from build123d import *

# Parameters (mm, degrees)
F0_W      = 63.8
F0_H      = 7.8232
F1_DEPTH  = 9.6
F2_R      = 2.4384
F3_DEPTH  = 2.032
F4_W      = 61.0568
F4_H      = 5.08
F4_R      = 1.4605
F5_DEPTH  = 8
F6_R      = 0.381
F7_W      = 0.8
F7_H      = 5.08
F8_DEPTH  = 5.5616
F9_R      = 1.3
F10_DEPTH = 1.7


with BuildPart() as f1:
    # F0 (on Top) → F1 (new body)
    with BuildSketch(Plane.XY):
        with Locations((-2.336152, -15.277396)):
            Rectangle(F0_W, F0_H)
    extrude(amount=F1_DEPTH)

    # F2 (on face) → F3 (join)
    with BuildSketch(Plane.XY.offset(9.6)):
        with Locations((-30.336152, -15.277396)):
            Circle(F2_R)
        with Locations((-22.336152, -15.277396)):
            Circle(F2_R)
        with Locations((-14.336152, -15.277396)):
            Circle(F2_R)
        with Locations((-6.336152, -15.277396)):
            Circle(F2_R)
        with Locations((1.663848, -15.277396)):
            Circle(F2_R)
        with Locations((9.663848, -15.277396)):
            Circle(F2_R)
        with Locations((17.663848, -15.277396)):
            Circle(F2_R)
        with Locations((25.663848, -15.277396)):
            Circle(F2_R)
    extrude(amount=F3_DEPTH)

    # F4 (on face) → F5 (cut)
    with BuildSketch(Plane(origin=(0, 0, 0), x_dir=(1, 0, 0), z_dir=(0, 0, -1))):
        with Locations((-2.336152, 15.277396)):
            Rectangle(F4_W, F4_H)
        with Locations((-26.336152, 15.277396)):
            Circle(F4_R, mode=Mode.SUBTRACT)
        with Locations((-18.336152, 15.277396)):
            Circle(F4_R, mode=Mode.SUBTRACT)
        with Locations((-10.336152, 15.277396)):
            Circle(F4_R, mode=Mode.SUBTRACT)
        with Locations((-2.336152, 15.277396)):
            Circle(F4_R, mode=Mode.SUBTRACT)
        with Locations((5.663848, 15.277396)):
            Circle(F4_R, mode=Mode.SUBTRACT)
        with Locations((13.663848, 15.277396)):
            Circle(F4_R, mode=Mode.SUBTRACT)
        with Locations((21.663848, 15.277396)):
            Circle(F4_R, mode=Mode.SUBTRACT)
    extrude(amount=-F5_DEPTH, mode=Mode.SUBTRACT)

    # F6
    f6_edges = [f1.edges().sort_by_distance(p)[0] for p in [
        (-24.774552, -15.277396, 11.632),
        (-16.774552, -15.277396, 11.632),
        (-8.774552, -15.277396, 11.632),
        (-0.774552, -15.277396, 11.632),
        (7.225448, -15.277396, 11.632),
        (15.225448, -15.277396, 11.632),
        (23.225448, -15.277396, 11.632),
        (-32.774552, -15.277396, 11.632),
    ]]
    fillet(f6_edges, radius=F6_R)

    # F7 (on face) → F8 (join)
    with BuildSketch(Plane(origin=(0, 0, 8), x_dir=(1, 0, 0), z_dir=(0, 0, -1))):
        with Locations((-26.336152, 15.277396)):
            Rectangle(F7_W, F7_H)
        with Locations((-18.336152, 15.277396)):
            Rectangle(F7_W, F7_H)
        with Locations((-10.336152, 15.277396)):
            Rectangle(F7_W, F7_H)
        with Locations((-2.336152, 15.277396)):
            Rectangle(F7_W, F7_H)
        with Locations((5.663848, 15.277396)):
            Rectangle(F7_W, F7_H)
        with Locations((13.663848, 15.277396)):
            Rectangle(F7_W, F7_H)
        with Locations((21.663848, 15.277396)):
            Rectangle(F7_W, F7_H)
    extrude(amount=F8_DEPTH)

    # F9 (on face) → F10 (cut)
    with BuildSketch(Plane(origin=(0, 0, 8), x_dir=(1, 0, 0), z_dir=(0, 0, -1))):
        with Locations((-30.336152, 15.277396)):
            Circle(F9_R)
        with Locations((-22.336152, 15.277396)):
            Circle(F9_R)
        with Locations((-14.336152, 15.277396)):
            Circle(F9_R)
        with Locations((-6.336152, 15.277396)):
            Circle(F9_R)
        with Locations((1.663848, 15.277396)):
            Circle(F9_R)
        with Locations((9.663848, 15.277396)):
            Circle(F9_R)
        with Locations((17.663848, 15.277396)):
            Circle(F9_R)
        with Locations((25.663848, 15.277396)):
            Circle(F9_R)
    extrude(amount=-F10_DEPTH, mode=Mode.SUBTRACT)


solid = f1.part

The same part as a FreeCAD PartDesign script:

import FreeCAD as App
import Part
import Sketcher
from FreeCAD import Vector


def edges_at(feature, points):
    """Names of the edges that pass closest to the given points."""
    edges = feature.Shape.Edges
    near = lambda p: min(range(len(edges)), key=lambda i: edges[i].distToShape(Part.Vertex(*p))[0])
    return sorted({f"Edge{near(p) + 1}" for p in points})

doc = App.newDocument("Part")
body = doc.addObject("PartDesign::Body", "Body")

sketch1 = body.newObject("Sketcher::SketchObject", "Sketch")
sketch1.AttachmentSupport = (doc.getObject("XY_Plane"), [""])
sketch1.MapMode = "FlatFace"
sketch1.addGeometry(Part.LineSegment(Vector(-34.236152, -11.365796, 0), Vector(-34.236152, -19.188996, 0)), False)
sketch1.addGeometry(Part.LineSegment(Vector(-34.236152, -19.188996, 0), Vector(29.563848, -19.188996, 0)), False)
sketch1.addGeometry(Part.LineSegment(Vector(29.563848, -19.188996, 0), Vector(29.563848, -11.365796, 0)), False)
sketch1.addGeometry(Part.LineSegment(Vector(29.563848, -11.365796, 0), Vector(-34.236152, -11.365796, 0)), False)
sketch1.addConstraint(Sketcher.Constraint("Coincident", 0, 2, 1, 1))
sketch1.addConstraint(Sketcher.Constraint("Coincident", 1, 2, 2, 1))
sketch1.addConstraint(Sketcher.Constraint("Coincident", 2, 2, 3, 1))
sketch1.addConstraint(Sketcher.Constraint("Coincident", 3, 2, 0, 1))
sketch1.addConstraint(Sketcher.Constraint("Vertical", 0))
sketch1.addConstraint(Sketcher.Constraint("Horizontal", 1))
sketch1.addConstraint(Sketcher.Constraint("Vertical", 2))
sketch1.addConstraint(Sketcher.Constraint("Horizontal", 3))
sketch1.addConstraint(Sketcher.Constraint("DistanceX", 1, 1, 1, 2, 63.8))
sketch1.addConstraint(Sketcher.Constraint("DistanceY", 0, 2, 0, 1, 7.8232))
sketch1.addConstraint(Sketcher.Constraint("DistanceX", 0, 2, -1, 1, 34.236152))
sketch1.addConstraint(Sketcher.Constraint("DistanceY", 0, 2, -1, 1, 19.188996))
pad1 = body.newObject("PartDesign::Pad", "Pad")
pad1.Profile = sketch1
pad1.Length = 9.6

sketch2 = body.newObject("Sketcher::SketchObject", "Sketch001")
sketch2.AttachmentSupport = (doc.getObject("XY_Plane"), [""])
sketch2.MapMode = "FlatFace"
sketch2.AttachmentOffset = App.Placement(Vector(0, 0, 9.6), App.Rotation())
sketch2.addGeometry(Part.Circle(Vector(-30.336152, -15.277396, 0), Vector(0, 0, 1), 2.4384), False)
sketch2.addGeometry(Part.Circle(Vector(-22.336152, -15.277396, 0), Vector(0, 0, 1), 2.4384), False)
sketch2.addGeometry(Part.Circle(Vector(-14.336152, -15.277396, 0), Vector(0, 0, 1), 2.4384), False)
sketch2.addGeometry(Part.Circle(Vector(-6.336152, -15.277396, 0), Vector(0, 0, 1), 2.4384), False)
sketch2.addGeometry(Part.Circle(Vector(1.663848, -15.277396, 0), Vector(0, 0, 1), 2.4384), False)
sketch2.addGeometry(Part.Circle(Vector(9.663848, -15.277396, 0), Vector(0, 0, 1), 2.4384), False)
sketch2.addGeometry(Part.Circle(Vector(17.663848, -15.277396, 0), Vector(0, 0, 1), 2.4384), False)
sketch2.addGeometry(Part.Circle(Vector(25.663848, -15.277396, 0), Vector(0, 0, 1), 2.4384), False)
sketch2.addConstraint(Sketcher.Constraint("Equal", 0, 1))
sketch2.addConstraint(Sketcher.Constraint("Equal", 1, 2))
sketch2.addConstraint(Sketcher.Constraint("Equal", 2, 3))
sketch2.addConstraint(Sketcher.Constraint("Equal", 3, 4))
sketch2.addConstraint(Sketcher.Constraint("Equal", 4, 5))
sketch2.addConstraint(Sketcher.Constraint("Equal", 5, 6))
sketch2.addConstraint(Sketcher.Constraint("Equal", 6, 7))
sketch2.addConstraint(Sketcher.Constraint("Horizontal", 0, 3, 1, 3))
sketch2.addConstraint(Sketcher.Constraint("Horizontal", 1, 3, 2, 3))
sketch2.addConstraint(Sketcher.Constraint("Horizontal", 2, 3, 3, 3))
sketch2.addConstraint(Sketcher.Constraint("Horizontal", 3, 3, 4, 3))
sketch2.addConstraint(Sketcher.Constraint("Horizontal", 4, 3, 5, 3))
sketch2.addConstraint(Sketcher.Constraint("Horizontal", 5, 3, 6, 3))
sketch2.addConstraint(Sketcher.Constraint("Horizontal", 6, 3, 7, 3))
sketch2.addConstraint(Sketcher.Constraint("DistanceX", 0, 3, 1, 3, 8.0))
sketch2.addConstraint(Sketcher.Constraint("DistanceX", 1, 3, 2, 3, 8.0))
sketch2.addConstraint(Sketcher.Constraint("DistanceX", 2, 3, 3, 3, 8.0))
sketch2.addConstraint(Sketcher.Constraint("DistanceX", 3, 3, 4, 3, 8.0))
sketch2.addConstraint(Sketcher.Constraint("DistanceX", 4, 3, 5, 3, 8.0))
sketch2.addConstraint(Sketcher.Constraint("DistanceX", 5, 3, 6, 3, 8.0))
sketch2.addConstraint(Sketcher.Constraint("DistanceX", 6, 3, 7, 3, 8.0))
sketch2.addConstraint(Sketcher.Constraint("Diameter", 0, 4.8768))
sketch2.addConstraint(Sketcher.Constraint("DistanceX", 0, 3, -1, 1, 30.336152))
sketch2.addConstraint(Sketcher.Constraint("DistanceY", 0, 3, -1, 1, 15.277396))
pad2 = body.newObject("PartDesign::Pad", "Pad001")
pad2.Profile = sketch2
pad2.Length = 2.032

sketch3 = body.newObject("Sketcher::SketchObject", "Sketch002")
sketch3.AttachmentSupport = (doc.getObject("XY_Plane"), [""])
sketch3.MapMode = "FlatFace"
sketch3.addGeometry(Part.LineSegment(Vector(-32.864552, -17.817396, 0), Vector(-32.864552, -12.737396, 0)), False)
sketch3.addGeometry(Part.LineSegment(Vector(-32.864552, -12.737396, 0), Vector(28.192248, -12.737396, 0)), False)
sketch3.addGeometry(Part.LineSegment(Vector(28.192248, -12.737396, 0), Vector(28.192248, -17.817396, 0)), False)
sketch3.addGeometry(Part.LineSegment(Vector(28.192248, -17.817396, 0), Vector(-32.864552, -17.817396, 0)), False)
sketch3.addGeometry(Part.Circle(Vector(-26.336152, -15.277396, 0), Vector(0, 0, 1), 1.4605), False)
sketch3.addGeometry(Part.Circle(Vector(-18.336152, -15.277396, 0), Vector(0, 0, 1), 1.4605), False)
sketch3.addGeometry(Part.Circle(Vector(-10.336152, -15.277396, 0), Vector(0, 0, 1), 1.4605), False)
sketch3.addGeometry(Part.Circle(Vector(-2.336152, -15.277396, 0), Vector(0, 0, 1), 1.4605), False)
sketch3.addGeometry(Part.Circle(Vector(5.663848, -15.277396, 0), Vector(0, 0, 1), 1.4605), False)
sketch3.addGeometry(Part.Circle(Vector(13.663848, -15.277396, 0), Vector(0, 0, 1), 1.4605), False)
sketch3.addGeometry(Part.Circle(Vector(21.663848, -15.277396, 0), Vector(0, 0, 1), 1.4605), False)
sketch3.addConstraint(Sketcher.Constraint("Coincident", 0, 2, 1, 1))
sketch3.addConstraint(Sketcher.Constraint("Coincident", 1, 2, 2, 1))
sketch3.addConstraint(Sketcher.Constraint("Coincident", 2, 2, 3, 1))
sketch3.addConstraint(Sketcher.Constraint("Coincident", 3, 2, 0, 1))
sketch3.addConstraint(Sketcher.Constraint("Vertical", 0))
sketch3.addConstraint(Sketcher.Constraint("Horizontal", 1))
sketch3.addConstraint(Sketcher.Constraint("Vertical", 2))
sketch3.addConstraint(Sketcher.Constraint("Horizontal", 3))
sketch3.addConstraint(Sketcher.Constraint("Equal", 4, 5))
sketch3.addConstraint(Sketcher.Constraint("Equal", 5, 6))
sketch3.addConstraint(Sketcher.Constraint("Equal", 6, 7))
sketch3.addConstraint(Sketcher.Constraint("Equal", 7, 8))
sketch3.addConstraint(Sketcher.Constraint("Equal", 8, 9))
sketch3.addConstraint(Sketcher.Constraint("Equal", 9, 10))
sketch3.addConstraint(Sketcher.Constraint("Horizontal", 4, 3, 5, 3))
sketch3.addConstraint(Sketcher.Constraint("Horizontal", 5, 3, 6, 3))
sketch3.addConstraint(Sketcher.Constraint("Horizontal", 6, 3, 7, 3))
sketch3.addConstraint(Sketcher.Constraint("Horizontal", 7, 3, 8, 3))
sketch3.addConstraint(Sketcher.Constraint("Horizontal", 8, 3, 9, 3))
sketch3.addConstraint(Sketcher.Constraint("Horizontal", 9, 3, 10, 3))
sketch3.addConstraint(Sketcher.Constraint("Diameter", 4, 2.921))
sketch3.addConstraint(Sketcher.Constraint("DistanceX", 4, 3, 5, 3, 8.0))
sketch3.addConstraint(Sketcher.Constraint("DistanceX", 5, 3, 6, 3, 8.0))
sketch3.addConstraint(Sketcher.Constraint("DistanceX", 6, 3, 7, 3, 8.0))
sketch3.addConstraint(Sketcher.Constraint("DistanceX", 7, 3, 8, 3, 8.0))
sketch3.addConstraint(Sketcher.Constraint("DistanceX", 8, 3, 9, 3, 8.0))
sketch3.addConstraint(Sketcher.Constraint("DistanceX", 9, 3, 10, 3, 8.0))
sketch3.addConstraint(Sketcher.Constraint("DistanceY", 0, 1, 0, 2, 5.08))
sketch3.addConstraint(Sketcher.Constraint("DistanceY", 4, 3, 0, 2, 2.54))
sketch3.addConstraint(Sketcher.Constraint("DistanceX", 1, 1, 1, 2, 61.0568))
sketch3.addConstraint(Sketcher.Constraint("DistanceX", 0, 2, 4, 3, 6.5284))
sketch3.addConstraint(Sketcher.Constraint("DistanceX", 4, 3, -1, 1, 26.336152))
sketch3.addConstraint(Sketcher.Constraint("DistanceY", 4, 3, -1, 1, 15.277396))
pocket1 = body.newObject("PartDesign::Pocket", "Pocket")
pocket1.Profile = sketch3
pocket1.Length = 8
pocket1.Reversed = True
doc.recompute()

fillet = body.newObject("PartDesign::Fillet", "Fillet")
fillet.Base = (pocket1, edges_at(pocket1, [
    (-24.775, -15.277, 11.632),
    (-16.775, -15.277, 11.632),
    (-8.775, -15.277, 11.632),
    (-0.775, -15.277, 11.632),
    (7.225, -15.277, 11.632),
    (15.225, -15.277, 11.632),
    (23.225, -15.277, 11.632),
    (-32.775, -15.277, 11.632),
]))
fillet.Radius = 0.381

sketch4 = body.newObject("Sketcher::SketchObject", "Sketch003")
sketch4.AttachmentSupport = (doc.getObject("XY_Plane"), [""])
sketch4.MapMode = "FlatFace"
sketch4.AttachmentOffset = App.Placement(Vector(0, 0, 8), App.Rotation())
sketch4.addGeometry(Part.LineSegment(Vector(-26.736152, -17.817396, 0), Vector(-26.736152, -12.737396, 0)), False)
sketch4.addGeometry(Part.LineSegment(Vector(-26.736152, -12.737396, 0), Vector(-25.936152, -12.737396, 0)), False)
sketch4.addGeometry(Part.LineSegment(Vector(-25.936152, -12.737396, 0), Vector(-25.936152, -17.817396, 0)), False)
sketch4.addGeometry(Part.LineSegment(Vector(-25.936152, -17.817396, 0), Vector(-26.736152, -17.817396, 0)), False)
sketch4.addGeometry(Part.LineSegment(Vector(-18.736152, -17.817396, 0), Vector(-18.736152, -12.737396, 0)), False)
sketch4.addGeometry(Part.LineSegment(Vector(-18.736152, -12.737396, 0), Vector(-17.936152, -12.737396, 0)), False)
sketch4.addGeometry(Part.LineSegment(Vector(-17.936152, -12.737396, 0), Vector(-17.936152, -17.817396, 0)), False)
sketch4.addGeometry(Part.LineSegment(Vector(-17.936152, -17.817396, 0), Vector(-18.736152, -17.817396, 0)), False)
sketch4.addGeometry(Part.LineSegment(Vector(-10.736152, -17.817396, 0), Vector(-10.736152, -12.737396, 0)), False)
sketch4.addGeometry(Part.LineSegment(Vector(-10.736152, -12.737396, 0), Vector(-9.936152, -12.737396, 0)), False)
sketch4.addGeometry(Part.LineSegment(Vector(-9.936152, -12.737396, 0), Vector(-9.936152, -17.817396, 0)), False)
sketch4.addGeometry(Part.LineSegment(Vector(-9.936152, -17.817396, 0), Vector(-10.736152, -17.817396, 0)), False)
sketch4.addGeometry(Part.LineSegment(Vector(-2.736152, -17.817396, 0), Vector(-2.736152, -12.737396, 0)), False)
sketch4.addGeometry(Part.LineSegment(Vector(-2.736152, -12.737396, 0), Vector(-1.936152, -12.737396, 0)), False)
sketch4.addGeometry(Part.LineSegment(Vector(-1.936152, -12.737396, 0), Vector(-1.936152, -17.817396, 0)), False)
sketch4.addGeometry(Part.LineSegment(Vector(-1.936152, -17.817396, 0), Vector(-2.736152, -17.817396, 0)), False)
sketch4.addGeometry(Part.LineSegment(Vector(5.263848, -17.817396, 0), Vector(5.263848, -12.737396, 0)), False)
sketch4.addGeometry(Part.LineSegment(Vector(5.263848, -12.737396, 0), Vector(6.063848, -12.737396, 0)), False)
sketch4.addGeometry(Part.LineSegment(Vector(6.063848, -12.737396, 0), Vector(6.063848, -17.817396, 0)), False)
sketch4.addGeometry(Part.LineSegment(Vector(6.063848, -17.817396, 0), Vector(5.263848, -17.817396, 0)), False)
sketch4.addGeometry(Part.LineSegment(Vector(13.263848, -17.817396, 0), Vector(13.263848, -12.737396, 0)), False)
sketch4.addGeometry(Part.LineSegment(Vector(13.263848, -12.737396, 0), Vector(14.063848, -12.737396, 0)), False)
sketch4.addGeometry(Part.LineSegment(Vector(14.063848, -12.737396, 0), Vector(14.063848, -17.817396, 0)), False)
sketch4.addGeometry(Part.LineSegment(Vector(14.063848, -17.817396, 0), Vector(13.263848, -17.817396, 0)), False)
sketch4.addGeometry(Part.LineSegment(Vector(21.263848, -17.817396, 0), Vector(21.263848, -12.737396, 0)), False)
sketch4.addGeometry(Part.LineSegment(Vector(21.263848, -12.737396, 0), Vector(22.063848, -12.737396, 0)), False)
sketch4.addGeometry(Part.LineSegment(Vector(22.063848, -12.737396, 0), Vector(22.063848, -17.817396, 0)), False)
sketch4.addGeometry(Part.LineSegment(Vector(22.063848, -17.817396, 0), Vector(21.263848, -17.817396, 0)), False)
sketch4.addConstraint(Sketcher.Constraint("Coincident", 0, 2, 1, 1))
sketch4.addConstraint(Sketcher.Constraint("Coincident", 1, 2, 2, 1))
sketch4.addConstraint(Sketcher.Constraint("Coincident", 2, 2, 3, 1))
sketch4.addConstraint(Sketcher.Constraint("Coincident", 3, 2, 0, 1))
sketch4.addConstraint(Sketcher.Constraint("Coincident", 4, 2, 5, 1))
sketch4.addConstraint(Sketcher.Constraint("Coincident", 5, 2, 6, 1))
sketch4.addConstraint(Sketcher.Constraint("Coincident", 6, 2, 7, 1))
sketch4.addConstraint(Sketcher.Constraint("Coincident", 7, 2, 4, 1))
sketch4.addConstraint(Sketcher.Constraint("Coincident", 8, 2, 9, 1))
sketch4.addConstraint(Sketcher.Constraint("Coincident", 9, 2, 10, 1))
sketch4.addConstraint(Sketcher.Constraint("Coincident", 10, 2, 11, 1))
sketch4.addConstraint(Sketcher.Constraint("Coincident", 11, 2, 8, 1))
sketch4.addConstraint(Sketcher.Constraint("Coincident", 12, 2, 13, 1))
sketch4.addConstraint(Sketcher.Constraint("Coincident", 13, 2, 14, 1))
sketch4.addConstraint(Sketcher.Constraint("Coincident", 14, 2, 15, 1))
sketch4.addConstraint(Sketcher.Constraint("Coincident", 15, 2, 12, 1))
sketch4.addConstraint(Sketcher.Constraint("Coincident", 16, 2, 17, 1))
sketch4.addConstraint(Sketcher.Constraint("Coincident", 17, 2, 18, 1))
sketch4.addConstraint(Sketcher.Constraint("Coincident", 18, 2, 19, 1))
sketch4.addConstraint(Sketcher.Constraint("Coincident", 19, 2, 16, 1))
sketch4.addConstraint(Sketcher.Constraint("Coincident", 20, 2, 21, 1))
sketch4.addConstraint(Sketcher.Constraint("Coincident", 21, 2, 22, 1))
sketch4.addConstraint(Sketcher.Constraint("Coincident", 22, 2, 23, 1))
sketch4.addConstraint(Sketcher.Constraint("Coincident", 23, 2, 20, 1))
sketch4.addConstraint(Sketcher.Constraint("Coincident", 24, 2, 25, 1))
sketch4.addConstraint(Sketcher.Constraint("Coincident", 25, 2, 26, 1))
sketch4.addConstraint(Sketcher.Constraint("Coincident", 26, 2, 27, 1))
sketch4.addConstraint(Sketcher.Constraint("Coincident", 27, 2, 24, 1))
sketch4.addConstraint(Sketcher.Constraint("Vertical", 0))
sketch4.addConstraint(Sketcher.Constraint("Horizontal", 1))
sketch4.addConstraint(Sketcher.Constraint("Vertical", 2))
sketch4.addConstraint(Sketcher.Constraint("Horizontal", 3))
sketch4.addConstraint(Sketcher.Constraint("Vertical", 4))
sketch4.addConstraint(Sketcher.Constraint("Horizontal", 5))
sketch4.addConstraint(Sketcher.Constraint("Vertical", 6))
sketch4.addConstraint(Sketcher.Constraint("Horizontal", 7))
sketch4.addConstraint(Sketcher.Constraint("Vertical", 8))
sketch4.addConstraint(Sketcher.Constraint("Horizontal", 9))
sketch4.addConstraint(Sketcher.Constraint("Vertical", 10))
sketch4.addConstraint(Sketcher.Constraint("Horizontal", 11))
sketch4.addConstraint(Sketcher.Constraint("Vertical", 12))
sketch4.addConstraint(Sketcher.Constraint("Horizontal", 13))
sketch4.addConstraint(Sketcher.Constraint("Vertical", 14))
sketch4.addConstraint(Sketcher.Constraint("Horizontal", 15))
sketch4.addConstraint(Sketcher.Constraint("Vertical", 16))
sketch4.addConstraint(Sketcher.Constraint("Horizontal", 17))
sketch4.addConstraint(Sketcher.Constraint("Vertical", 18))
sketch4.addConstraint(Sketcher.Constraint("Horizontal", 19))
sketch4.addConstraint(Sketcher.Constraint("Vertical", 20))
sketch4.addConstraint(Sketcher.Constraint("Horizontal", 21))
sketch4.addConstraint(Sketcher.Constraint("Vertical", 22))
sketch4.addConstraint(Sketcher.Constraint("Horizontal", 23))
sketch4.addConstraint(Sketcher.Constraint("Vertical", 24))
sketch4.addConstraint(Sketcher.Constraint("Horizontal", 25))
sketch4.addConstraint(Sketcher.Constraint("Vertical", 26))
sketch4.addConstraint(Sketcher.Constraint("Horizontal", 27))
sketch4.addConstraint(Sketcher.Constraint("Horizontal", 1, 2, 4, 2))
sketch4.addConstraint(Sketcher.Constraint("Horizontal", 3, 2, 6, 2))
sketch4.addConstraint(Sketcher.Constraint("Horizontal", 5, 2, 8, 2))
sketch4.addConstraint(Sketcher.Constraint("Horizontal", 7, 2, 10, 2))
sketch4.addConstraint(Sketcher.Constraint("Horizontal", 9, 2, 12, 2))
sketch4.addConstraint(Sketcher.Constraint("Horizontal", 11, 2, 14, 2))
sketch4.addConstraint(Sketcher.Constraint("Horizontal", 13, 2, 16, 2))
sketch4.addConstraint(Sketcher.Constraint("Horizontal", 15, 2, 18, 2))
sketch4.addConstraint(Sketcher.Constraint("Horizontal", 17, 2, 20, 2))
sketch4.addConstraint(Sketcher.Constraint("Horizontal", 19, 2, 22, 2))
sketch4.addConstraint(Sketcher.Constraint("Horizontal", 21, 2, 24, 2))
sketch4.addConstraint(Sketcher.Constraint("Horizontal", 23, 2, 26, 2))
sketch4.addConstraint(Sketcher.Constraint("Equal", 3, 5))
sketch4.addConstraint(Sketcher.Constraint("Equal", 7, 9))
sketch4.addConstraint(Sketcher.Constraint("Equal", 11, 13))
sketch4.addConstraint(Sketcher.Constraint("Equal", 15, 17))
sketch4.addConstraint(Sketcher.Constraint("Equal", 19, 21))
sketch4.addConstraint(Sketcher.Constraint("Equal", 23, 25))
sketch4.addConstraint(Sketcher.Constraint("DistanceX", 1, 1, 1, 2, 0.8))
sketch4.addConstraint(Sketcher.Constraint("DistanceX", 0, 2, 4, 2, 8.0))
sketch4.addConstraint(Sketcher.Constraint("DistanceX", 4, 2, 8, 2, 8.0))
sketch4.addConstraint(Sketcher.Constraint("DistanceX", 8, 2, 12, 2, 8.0))
sketch4.addConstraint(Sketcher.Constraint("DistanceX", 12, 2, 16, 2, 8.0))
sketch4.addConstraint(Sketcher.Constraint("DistanceX", 16, 2, 20, 2, 8.0))
sketch4.addConstraint(Sketcher.Constraint("DistanceX", 20, 2, 24, 2, 8.0))
sketch4.addConstraint(Sketcher.Constraint("DistanceY", 0, 1, 0, 2, 5.08))
sketch4.addConstraint(Sketcher.Constraint("DistanceX", 1, 2, -1, 1, 25.936152))
sketch4.addConstraint(Sketcher.Constraint("DistanceY", 0, 2, -1, 1, 12.737396))
pad3 = body.newObject("PartDesign::Pad", "Pad002")
pad3.Profile = sketch4
pad3.Length = 5.5616
pad3.Reversed = True

sketch5 = body.newObject("Sketcher::SketchObject", "Sketch004")
sketch5.AttachmentSupport = (doc.getObject("XY_Plane"), [""])
sketch5.MapMode = "FlatFace"
sketch5.AttachmentOffset = App.Placement(Vector(0, 0, 8), App.Rotation())
sketch5.addGeometry(Part.Circle(Vector(-30.336152, -15.277396, 0), Vector(0, 0, 1), 1.3), False)
sketch5.addGeometry(Part.Circle(Vector(-22.336152, -15.277396, 0), Vector(0, 0, 1), 1.3), False)
sketch5.addGeometry(Part.Circle(Vector(-14.336152, -15.277396, 0), Vector(0, 0, 1), 1.3), False)
sketch5.addGeometry(Part.Circle(Vector(-6.336152, -15.277396, 0), Vector(0, 0, 1), 1.3), False)
sketch5.addGeometry(Part.Circle(Vector(1.663848, -15.277396, 0), Vector(0, 0, 1), 1.3), False)
sketch5.addGeometry(Part.Circle(Vector(9.663848, -15.277396, 0), Vector(0, 0, 1), 1.3), False)
sketch5.addGeometry(Part.Circle(Vector(17.663848, -15.277396, 0), Vector(0, 0, 1), 1.3), False)
sketch5.addGeometry(Part.Circle(Vector(25.663848, -15.277396, 0), Vector(0, 0, 1), 1.3), False)
sketch5.addConstraint(Sketcher.Constraint("Equal", 0, 1))
sketch5.addConstraint(Sketcher.Constraint("Equal", 1, 2))
sketch5.addConstraint(Sketcher.Constraint("Equal", 2, 3))
sketch5.addConstraint(Sketcher.Constraint("Equal", 3, 4))
sketch5.addConstraint(Sketcher.Constraint("Equal", 4, 5))
sketch5.addConstraint(Sketcher.Constraint("Equal", 5, 6))
sketch5.addConstraint(Sketcher.Constraint("Equal", 6, 7))
sketch5.addConstraint(Sketcher.Constraint("Horizontal", 0, 3, 1, 3))
sketch5.addConstraint(Sketcher.Constraint("Horizontal", 1, 3, 2, 3))
sketch5.addConstraint(Sketcher.Constraint("Horizontal", 2, 3, 3, 3))
sketch5.addConstraint(Sketcher.Constraint("Horizontal", 3, 3, 4, 3))
sketch5.addConstraint(Sketcher.Constraint("Horizontal", 4, 3, 5, 3))
sketch5.addConstraint(Sketcher.Constraint("Horizontal", 5, 3, 6, 3))
sketch5.addConstraint(Sketcher.Constraint("Horizontal", 6, 3, 7, 3))
sketch5.addConstraint(Sketcher.Constraint("Diameter", 0, 2.6))
sketch5.addConstraint(Sketcher.Constraint("DistanceX", 0, 3, 1, 3, 8.0))
sketch5.addConstraint(Sketcher.Constraint("DistanceX", 1, 3, 2, 3, 8.0))
sketch5.addConstraint(Sketcher.Constraint("DistanceX", 2, 3, 3, 3, 8.0))
sketch5.addConstraint(Sketcher.Constraint("DistanceX", 3, 3, 4, 3, 8.0))
sketch5.addConstraint(Sketcher.Constraint("DistanceX", 4, 3, 5, 3, 8.0))
sketch5.addConstraint(Sketcher.Constraint("DistanceX", 5, 3, 6, 3, 8.0))
sketch5.addConstraint(Sketcher.Constraint("DistanceX", 6, 3, 7, 3, 8.0))
sketch5.addConstraint(Sketcher.Constraint("DistanceX", 0, 3, -1, 1, 30.336152))
sketch5.addConstraint(Sketcher.Constraint("DistanceY", 0, 3, -1, 1, 15.277396))
pocket2 = body.newObject("PartDesign::Pocket", "Pocket001")
pocket2.Profile = sketch5
pocket2.Length = 1.7
pocket2.Reversed = True

doc.recompute()
